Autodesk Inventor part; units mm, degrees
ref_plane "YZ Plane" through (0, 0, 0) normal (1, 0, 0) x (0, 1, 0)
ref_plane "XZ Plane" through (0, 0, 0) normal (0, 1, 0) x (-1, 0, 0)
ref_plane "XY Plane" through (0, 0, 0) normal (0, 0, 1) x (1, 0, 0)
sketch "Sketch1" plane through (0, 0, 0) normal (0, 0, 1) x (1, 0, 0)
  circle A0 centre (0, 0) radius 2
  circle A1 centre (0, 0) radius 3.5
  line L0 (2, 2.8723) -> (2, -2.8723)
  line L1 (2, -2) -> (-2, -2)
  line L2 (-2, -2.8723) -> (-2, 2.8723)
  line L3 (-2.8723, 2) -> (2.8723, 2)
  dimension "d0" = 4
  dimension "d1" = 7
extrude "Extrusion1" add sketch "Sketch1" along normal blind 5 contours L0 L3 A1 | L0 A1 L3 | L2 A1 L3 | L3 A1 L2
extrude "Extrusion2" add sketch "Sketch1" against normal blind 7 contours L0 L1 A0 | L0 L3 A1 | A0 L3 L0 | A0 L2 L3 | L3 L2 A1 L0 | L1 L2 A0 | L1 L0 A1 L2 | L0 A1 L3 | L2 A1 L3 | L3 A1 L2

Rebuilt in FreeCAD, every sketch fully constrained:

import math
import FreeCAD as App
import Part
import Sketcher

V = App.Vector

doc = App.newDocument("Part")
params = doc.addObject("Spreadsheet::Sheet", "Params")
for row, (alias, value) in enumerate([
    ("sketch1_radius", "3.5 mm"),
    ("pad1_length", "5 mm"),
    ("sketch2_diameter", "7 mm"),
    ("sketch2_diameter2", "4 mm"),
    ("pad2_length", "7 mm"),
], start=1):
    params.set(f"A{row}", alias)
    params.set(f"B{row}", "=" + value)
    params.setAlias(f"B{row}", alias)

body = doc.addObject("PartDesign::Body", "Body")
body.AllowCompound = True

sketch1 = body.newObject("Sketcher::SketchObject", "Sketch")
sketch1.AttachmentSupport = (doc.getObject("XY_Plane"), [""])
sketch1.MapMode = "FlatFace"
sketch1.addGeometry([
    Part.ArcOfCircle(Part.Circle(V(0, 0, 0), V(0, 0, 1), 3.5), math.radians(-55), math.radians(55)),
    Part.LineSegment(V(2, -2.9, 0), V(2, 2.9, 0)),
    Part.ArcOfCircle(Part.Circle(V(0, 0, 0), V(0, 0, 1), 3.5), math.radians(125), math.radians(235)),
    Part.LineSegment(V(-2, 2.9, 0), V(-2, -2.9, 0)),
], False)
sketch1.addConstraint([
    Sketcher.Constraint("Coincident", 0, 1, 1, 1),
    Sketcher.Constraint("Coincident", 1, 2, 0, 2),
    Sketcher.Constraint("Coincident", 2, 1, 3, 1),
    Sketcher.Constraint("Coincident", 3, 2, 2, 2),
    Sketcher.Constraint("Vertical", 1),
    Sketcher.Constraint("Vertical", 3),
    Sketcher.Constraint("Coincident", 0, 3, -1, 1),
    Sketcher.Constraint("Coincident", 2, 3, -1, 1),
    Sketcher.Constraint("Equal", 0, 2),
    Sketcher.Constraint("Horizontal", 1, 2, 2, 1),
    Sketcher.Constraint("Radius", 0, 3.5),
    Sketcher.Constraint("DistanceX", 2, 1, 1, 2, 4.0),
])
sketch1.setExpression("Constraints[10]", "Params.sketch1_radius")
pad1 = body.newObject("PartDesign::Pad", "Pad")
pad1.Profile = sketch1
pad1.setExpression("Length", "Params.pad1_length")

sketch2 = body.newObject("Sketcher::SketchObject", "Sketch001")
sketch2.AttachmentSupport = (doc.getObject("XY_Plane"), [""])
sketch2.MapMode = "FlatFace"
sketch2.addGeometry([
    Part.Circle(V(0, 0, 0), V(0, 0, 1), 3.5),
    Part.Circle(V(0, 0, 0), V(0, 0, 1), 2),
], False)
sketch2.addConstraint([
    Sketcher.Constraint("Coincident", 0, 3, -1, 1),
    Sketcher.Constraint("Coincident", 1, 3, -1, 1),
    Sketcher.Constraint("Diameter", 0, 7.0),
    Sketcher.Constraint("Diameter", 1, 4.0),
])
sketch2.setExpression("Constraints[2]", "Params.sketch2_diameter")
sketch2.setExpression("Constraints[3]", "Params.sketch2_diameter2")
pad2 = body.newObject("PartDesign::Pad", "Pad001")
pad2.Profile = sketch2
pad2.setExpression("Length", "Params.pad2_length")
pad2.Reversed = True

doc.recompute()
